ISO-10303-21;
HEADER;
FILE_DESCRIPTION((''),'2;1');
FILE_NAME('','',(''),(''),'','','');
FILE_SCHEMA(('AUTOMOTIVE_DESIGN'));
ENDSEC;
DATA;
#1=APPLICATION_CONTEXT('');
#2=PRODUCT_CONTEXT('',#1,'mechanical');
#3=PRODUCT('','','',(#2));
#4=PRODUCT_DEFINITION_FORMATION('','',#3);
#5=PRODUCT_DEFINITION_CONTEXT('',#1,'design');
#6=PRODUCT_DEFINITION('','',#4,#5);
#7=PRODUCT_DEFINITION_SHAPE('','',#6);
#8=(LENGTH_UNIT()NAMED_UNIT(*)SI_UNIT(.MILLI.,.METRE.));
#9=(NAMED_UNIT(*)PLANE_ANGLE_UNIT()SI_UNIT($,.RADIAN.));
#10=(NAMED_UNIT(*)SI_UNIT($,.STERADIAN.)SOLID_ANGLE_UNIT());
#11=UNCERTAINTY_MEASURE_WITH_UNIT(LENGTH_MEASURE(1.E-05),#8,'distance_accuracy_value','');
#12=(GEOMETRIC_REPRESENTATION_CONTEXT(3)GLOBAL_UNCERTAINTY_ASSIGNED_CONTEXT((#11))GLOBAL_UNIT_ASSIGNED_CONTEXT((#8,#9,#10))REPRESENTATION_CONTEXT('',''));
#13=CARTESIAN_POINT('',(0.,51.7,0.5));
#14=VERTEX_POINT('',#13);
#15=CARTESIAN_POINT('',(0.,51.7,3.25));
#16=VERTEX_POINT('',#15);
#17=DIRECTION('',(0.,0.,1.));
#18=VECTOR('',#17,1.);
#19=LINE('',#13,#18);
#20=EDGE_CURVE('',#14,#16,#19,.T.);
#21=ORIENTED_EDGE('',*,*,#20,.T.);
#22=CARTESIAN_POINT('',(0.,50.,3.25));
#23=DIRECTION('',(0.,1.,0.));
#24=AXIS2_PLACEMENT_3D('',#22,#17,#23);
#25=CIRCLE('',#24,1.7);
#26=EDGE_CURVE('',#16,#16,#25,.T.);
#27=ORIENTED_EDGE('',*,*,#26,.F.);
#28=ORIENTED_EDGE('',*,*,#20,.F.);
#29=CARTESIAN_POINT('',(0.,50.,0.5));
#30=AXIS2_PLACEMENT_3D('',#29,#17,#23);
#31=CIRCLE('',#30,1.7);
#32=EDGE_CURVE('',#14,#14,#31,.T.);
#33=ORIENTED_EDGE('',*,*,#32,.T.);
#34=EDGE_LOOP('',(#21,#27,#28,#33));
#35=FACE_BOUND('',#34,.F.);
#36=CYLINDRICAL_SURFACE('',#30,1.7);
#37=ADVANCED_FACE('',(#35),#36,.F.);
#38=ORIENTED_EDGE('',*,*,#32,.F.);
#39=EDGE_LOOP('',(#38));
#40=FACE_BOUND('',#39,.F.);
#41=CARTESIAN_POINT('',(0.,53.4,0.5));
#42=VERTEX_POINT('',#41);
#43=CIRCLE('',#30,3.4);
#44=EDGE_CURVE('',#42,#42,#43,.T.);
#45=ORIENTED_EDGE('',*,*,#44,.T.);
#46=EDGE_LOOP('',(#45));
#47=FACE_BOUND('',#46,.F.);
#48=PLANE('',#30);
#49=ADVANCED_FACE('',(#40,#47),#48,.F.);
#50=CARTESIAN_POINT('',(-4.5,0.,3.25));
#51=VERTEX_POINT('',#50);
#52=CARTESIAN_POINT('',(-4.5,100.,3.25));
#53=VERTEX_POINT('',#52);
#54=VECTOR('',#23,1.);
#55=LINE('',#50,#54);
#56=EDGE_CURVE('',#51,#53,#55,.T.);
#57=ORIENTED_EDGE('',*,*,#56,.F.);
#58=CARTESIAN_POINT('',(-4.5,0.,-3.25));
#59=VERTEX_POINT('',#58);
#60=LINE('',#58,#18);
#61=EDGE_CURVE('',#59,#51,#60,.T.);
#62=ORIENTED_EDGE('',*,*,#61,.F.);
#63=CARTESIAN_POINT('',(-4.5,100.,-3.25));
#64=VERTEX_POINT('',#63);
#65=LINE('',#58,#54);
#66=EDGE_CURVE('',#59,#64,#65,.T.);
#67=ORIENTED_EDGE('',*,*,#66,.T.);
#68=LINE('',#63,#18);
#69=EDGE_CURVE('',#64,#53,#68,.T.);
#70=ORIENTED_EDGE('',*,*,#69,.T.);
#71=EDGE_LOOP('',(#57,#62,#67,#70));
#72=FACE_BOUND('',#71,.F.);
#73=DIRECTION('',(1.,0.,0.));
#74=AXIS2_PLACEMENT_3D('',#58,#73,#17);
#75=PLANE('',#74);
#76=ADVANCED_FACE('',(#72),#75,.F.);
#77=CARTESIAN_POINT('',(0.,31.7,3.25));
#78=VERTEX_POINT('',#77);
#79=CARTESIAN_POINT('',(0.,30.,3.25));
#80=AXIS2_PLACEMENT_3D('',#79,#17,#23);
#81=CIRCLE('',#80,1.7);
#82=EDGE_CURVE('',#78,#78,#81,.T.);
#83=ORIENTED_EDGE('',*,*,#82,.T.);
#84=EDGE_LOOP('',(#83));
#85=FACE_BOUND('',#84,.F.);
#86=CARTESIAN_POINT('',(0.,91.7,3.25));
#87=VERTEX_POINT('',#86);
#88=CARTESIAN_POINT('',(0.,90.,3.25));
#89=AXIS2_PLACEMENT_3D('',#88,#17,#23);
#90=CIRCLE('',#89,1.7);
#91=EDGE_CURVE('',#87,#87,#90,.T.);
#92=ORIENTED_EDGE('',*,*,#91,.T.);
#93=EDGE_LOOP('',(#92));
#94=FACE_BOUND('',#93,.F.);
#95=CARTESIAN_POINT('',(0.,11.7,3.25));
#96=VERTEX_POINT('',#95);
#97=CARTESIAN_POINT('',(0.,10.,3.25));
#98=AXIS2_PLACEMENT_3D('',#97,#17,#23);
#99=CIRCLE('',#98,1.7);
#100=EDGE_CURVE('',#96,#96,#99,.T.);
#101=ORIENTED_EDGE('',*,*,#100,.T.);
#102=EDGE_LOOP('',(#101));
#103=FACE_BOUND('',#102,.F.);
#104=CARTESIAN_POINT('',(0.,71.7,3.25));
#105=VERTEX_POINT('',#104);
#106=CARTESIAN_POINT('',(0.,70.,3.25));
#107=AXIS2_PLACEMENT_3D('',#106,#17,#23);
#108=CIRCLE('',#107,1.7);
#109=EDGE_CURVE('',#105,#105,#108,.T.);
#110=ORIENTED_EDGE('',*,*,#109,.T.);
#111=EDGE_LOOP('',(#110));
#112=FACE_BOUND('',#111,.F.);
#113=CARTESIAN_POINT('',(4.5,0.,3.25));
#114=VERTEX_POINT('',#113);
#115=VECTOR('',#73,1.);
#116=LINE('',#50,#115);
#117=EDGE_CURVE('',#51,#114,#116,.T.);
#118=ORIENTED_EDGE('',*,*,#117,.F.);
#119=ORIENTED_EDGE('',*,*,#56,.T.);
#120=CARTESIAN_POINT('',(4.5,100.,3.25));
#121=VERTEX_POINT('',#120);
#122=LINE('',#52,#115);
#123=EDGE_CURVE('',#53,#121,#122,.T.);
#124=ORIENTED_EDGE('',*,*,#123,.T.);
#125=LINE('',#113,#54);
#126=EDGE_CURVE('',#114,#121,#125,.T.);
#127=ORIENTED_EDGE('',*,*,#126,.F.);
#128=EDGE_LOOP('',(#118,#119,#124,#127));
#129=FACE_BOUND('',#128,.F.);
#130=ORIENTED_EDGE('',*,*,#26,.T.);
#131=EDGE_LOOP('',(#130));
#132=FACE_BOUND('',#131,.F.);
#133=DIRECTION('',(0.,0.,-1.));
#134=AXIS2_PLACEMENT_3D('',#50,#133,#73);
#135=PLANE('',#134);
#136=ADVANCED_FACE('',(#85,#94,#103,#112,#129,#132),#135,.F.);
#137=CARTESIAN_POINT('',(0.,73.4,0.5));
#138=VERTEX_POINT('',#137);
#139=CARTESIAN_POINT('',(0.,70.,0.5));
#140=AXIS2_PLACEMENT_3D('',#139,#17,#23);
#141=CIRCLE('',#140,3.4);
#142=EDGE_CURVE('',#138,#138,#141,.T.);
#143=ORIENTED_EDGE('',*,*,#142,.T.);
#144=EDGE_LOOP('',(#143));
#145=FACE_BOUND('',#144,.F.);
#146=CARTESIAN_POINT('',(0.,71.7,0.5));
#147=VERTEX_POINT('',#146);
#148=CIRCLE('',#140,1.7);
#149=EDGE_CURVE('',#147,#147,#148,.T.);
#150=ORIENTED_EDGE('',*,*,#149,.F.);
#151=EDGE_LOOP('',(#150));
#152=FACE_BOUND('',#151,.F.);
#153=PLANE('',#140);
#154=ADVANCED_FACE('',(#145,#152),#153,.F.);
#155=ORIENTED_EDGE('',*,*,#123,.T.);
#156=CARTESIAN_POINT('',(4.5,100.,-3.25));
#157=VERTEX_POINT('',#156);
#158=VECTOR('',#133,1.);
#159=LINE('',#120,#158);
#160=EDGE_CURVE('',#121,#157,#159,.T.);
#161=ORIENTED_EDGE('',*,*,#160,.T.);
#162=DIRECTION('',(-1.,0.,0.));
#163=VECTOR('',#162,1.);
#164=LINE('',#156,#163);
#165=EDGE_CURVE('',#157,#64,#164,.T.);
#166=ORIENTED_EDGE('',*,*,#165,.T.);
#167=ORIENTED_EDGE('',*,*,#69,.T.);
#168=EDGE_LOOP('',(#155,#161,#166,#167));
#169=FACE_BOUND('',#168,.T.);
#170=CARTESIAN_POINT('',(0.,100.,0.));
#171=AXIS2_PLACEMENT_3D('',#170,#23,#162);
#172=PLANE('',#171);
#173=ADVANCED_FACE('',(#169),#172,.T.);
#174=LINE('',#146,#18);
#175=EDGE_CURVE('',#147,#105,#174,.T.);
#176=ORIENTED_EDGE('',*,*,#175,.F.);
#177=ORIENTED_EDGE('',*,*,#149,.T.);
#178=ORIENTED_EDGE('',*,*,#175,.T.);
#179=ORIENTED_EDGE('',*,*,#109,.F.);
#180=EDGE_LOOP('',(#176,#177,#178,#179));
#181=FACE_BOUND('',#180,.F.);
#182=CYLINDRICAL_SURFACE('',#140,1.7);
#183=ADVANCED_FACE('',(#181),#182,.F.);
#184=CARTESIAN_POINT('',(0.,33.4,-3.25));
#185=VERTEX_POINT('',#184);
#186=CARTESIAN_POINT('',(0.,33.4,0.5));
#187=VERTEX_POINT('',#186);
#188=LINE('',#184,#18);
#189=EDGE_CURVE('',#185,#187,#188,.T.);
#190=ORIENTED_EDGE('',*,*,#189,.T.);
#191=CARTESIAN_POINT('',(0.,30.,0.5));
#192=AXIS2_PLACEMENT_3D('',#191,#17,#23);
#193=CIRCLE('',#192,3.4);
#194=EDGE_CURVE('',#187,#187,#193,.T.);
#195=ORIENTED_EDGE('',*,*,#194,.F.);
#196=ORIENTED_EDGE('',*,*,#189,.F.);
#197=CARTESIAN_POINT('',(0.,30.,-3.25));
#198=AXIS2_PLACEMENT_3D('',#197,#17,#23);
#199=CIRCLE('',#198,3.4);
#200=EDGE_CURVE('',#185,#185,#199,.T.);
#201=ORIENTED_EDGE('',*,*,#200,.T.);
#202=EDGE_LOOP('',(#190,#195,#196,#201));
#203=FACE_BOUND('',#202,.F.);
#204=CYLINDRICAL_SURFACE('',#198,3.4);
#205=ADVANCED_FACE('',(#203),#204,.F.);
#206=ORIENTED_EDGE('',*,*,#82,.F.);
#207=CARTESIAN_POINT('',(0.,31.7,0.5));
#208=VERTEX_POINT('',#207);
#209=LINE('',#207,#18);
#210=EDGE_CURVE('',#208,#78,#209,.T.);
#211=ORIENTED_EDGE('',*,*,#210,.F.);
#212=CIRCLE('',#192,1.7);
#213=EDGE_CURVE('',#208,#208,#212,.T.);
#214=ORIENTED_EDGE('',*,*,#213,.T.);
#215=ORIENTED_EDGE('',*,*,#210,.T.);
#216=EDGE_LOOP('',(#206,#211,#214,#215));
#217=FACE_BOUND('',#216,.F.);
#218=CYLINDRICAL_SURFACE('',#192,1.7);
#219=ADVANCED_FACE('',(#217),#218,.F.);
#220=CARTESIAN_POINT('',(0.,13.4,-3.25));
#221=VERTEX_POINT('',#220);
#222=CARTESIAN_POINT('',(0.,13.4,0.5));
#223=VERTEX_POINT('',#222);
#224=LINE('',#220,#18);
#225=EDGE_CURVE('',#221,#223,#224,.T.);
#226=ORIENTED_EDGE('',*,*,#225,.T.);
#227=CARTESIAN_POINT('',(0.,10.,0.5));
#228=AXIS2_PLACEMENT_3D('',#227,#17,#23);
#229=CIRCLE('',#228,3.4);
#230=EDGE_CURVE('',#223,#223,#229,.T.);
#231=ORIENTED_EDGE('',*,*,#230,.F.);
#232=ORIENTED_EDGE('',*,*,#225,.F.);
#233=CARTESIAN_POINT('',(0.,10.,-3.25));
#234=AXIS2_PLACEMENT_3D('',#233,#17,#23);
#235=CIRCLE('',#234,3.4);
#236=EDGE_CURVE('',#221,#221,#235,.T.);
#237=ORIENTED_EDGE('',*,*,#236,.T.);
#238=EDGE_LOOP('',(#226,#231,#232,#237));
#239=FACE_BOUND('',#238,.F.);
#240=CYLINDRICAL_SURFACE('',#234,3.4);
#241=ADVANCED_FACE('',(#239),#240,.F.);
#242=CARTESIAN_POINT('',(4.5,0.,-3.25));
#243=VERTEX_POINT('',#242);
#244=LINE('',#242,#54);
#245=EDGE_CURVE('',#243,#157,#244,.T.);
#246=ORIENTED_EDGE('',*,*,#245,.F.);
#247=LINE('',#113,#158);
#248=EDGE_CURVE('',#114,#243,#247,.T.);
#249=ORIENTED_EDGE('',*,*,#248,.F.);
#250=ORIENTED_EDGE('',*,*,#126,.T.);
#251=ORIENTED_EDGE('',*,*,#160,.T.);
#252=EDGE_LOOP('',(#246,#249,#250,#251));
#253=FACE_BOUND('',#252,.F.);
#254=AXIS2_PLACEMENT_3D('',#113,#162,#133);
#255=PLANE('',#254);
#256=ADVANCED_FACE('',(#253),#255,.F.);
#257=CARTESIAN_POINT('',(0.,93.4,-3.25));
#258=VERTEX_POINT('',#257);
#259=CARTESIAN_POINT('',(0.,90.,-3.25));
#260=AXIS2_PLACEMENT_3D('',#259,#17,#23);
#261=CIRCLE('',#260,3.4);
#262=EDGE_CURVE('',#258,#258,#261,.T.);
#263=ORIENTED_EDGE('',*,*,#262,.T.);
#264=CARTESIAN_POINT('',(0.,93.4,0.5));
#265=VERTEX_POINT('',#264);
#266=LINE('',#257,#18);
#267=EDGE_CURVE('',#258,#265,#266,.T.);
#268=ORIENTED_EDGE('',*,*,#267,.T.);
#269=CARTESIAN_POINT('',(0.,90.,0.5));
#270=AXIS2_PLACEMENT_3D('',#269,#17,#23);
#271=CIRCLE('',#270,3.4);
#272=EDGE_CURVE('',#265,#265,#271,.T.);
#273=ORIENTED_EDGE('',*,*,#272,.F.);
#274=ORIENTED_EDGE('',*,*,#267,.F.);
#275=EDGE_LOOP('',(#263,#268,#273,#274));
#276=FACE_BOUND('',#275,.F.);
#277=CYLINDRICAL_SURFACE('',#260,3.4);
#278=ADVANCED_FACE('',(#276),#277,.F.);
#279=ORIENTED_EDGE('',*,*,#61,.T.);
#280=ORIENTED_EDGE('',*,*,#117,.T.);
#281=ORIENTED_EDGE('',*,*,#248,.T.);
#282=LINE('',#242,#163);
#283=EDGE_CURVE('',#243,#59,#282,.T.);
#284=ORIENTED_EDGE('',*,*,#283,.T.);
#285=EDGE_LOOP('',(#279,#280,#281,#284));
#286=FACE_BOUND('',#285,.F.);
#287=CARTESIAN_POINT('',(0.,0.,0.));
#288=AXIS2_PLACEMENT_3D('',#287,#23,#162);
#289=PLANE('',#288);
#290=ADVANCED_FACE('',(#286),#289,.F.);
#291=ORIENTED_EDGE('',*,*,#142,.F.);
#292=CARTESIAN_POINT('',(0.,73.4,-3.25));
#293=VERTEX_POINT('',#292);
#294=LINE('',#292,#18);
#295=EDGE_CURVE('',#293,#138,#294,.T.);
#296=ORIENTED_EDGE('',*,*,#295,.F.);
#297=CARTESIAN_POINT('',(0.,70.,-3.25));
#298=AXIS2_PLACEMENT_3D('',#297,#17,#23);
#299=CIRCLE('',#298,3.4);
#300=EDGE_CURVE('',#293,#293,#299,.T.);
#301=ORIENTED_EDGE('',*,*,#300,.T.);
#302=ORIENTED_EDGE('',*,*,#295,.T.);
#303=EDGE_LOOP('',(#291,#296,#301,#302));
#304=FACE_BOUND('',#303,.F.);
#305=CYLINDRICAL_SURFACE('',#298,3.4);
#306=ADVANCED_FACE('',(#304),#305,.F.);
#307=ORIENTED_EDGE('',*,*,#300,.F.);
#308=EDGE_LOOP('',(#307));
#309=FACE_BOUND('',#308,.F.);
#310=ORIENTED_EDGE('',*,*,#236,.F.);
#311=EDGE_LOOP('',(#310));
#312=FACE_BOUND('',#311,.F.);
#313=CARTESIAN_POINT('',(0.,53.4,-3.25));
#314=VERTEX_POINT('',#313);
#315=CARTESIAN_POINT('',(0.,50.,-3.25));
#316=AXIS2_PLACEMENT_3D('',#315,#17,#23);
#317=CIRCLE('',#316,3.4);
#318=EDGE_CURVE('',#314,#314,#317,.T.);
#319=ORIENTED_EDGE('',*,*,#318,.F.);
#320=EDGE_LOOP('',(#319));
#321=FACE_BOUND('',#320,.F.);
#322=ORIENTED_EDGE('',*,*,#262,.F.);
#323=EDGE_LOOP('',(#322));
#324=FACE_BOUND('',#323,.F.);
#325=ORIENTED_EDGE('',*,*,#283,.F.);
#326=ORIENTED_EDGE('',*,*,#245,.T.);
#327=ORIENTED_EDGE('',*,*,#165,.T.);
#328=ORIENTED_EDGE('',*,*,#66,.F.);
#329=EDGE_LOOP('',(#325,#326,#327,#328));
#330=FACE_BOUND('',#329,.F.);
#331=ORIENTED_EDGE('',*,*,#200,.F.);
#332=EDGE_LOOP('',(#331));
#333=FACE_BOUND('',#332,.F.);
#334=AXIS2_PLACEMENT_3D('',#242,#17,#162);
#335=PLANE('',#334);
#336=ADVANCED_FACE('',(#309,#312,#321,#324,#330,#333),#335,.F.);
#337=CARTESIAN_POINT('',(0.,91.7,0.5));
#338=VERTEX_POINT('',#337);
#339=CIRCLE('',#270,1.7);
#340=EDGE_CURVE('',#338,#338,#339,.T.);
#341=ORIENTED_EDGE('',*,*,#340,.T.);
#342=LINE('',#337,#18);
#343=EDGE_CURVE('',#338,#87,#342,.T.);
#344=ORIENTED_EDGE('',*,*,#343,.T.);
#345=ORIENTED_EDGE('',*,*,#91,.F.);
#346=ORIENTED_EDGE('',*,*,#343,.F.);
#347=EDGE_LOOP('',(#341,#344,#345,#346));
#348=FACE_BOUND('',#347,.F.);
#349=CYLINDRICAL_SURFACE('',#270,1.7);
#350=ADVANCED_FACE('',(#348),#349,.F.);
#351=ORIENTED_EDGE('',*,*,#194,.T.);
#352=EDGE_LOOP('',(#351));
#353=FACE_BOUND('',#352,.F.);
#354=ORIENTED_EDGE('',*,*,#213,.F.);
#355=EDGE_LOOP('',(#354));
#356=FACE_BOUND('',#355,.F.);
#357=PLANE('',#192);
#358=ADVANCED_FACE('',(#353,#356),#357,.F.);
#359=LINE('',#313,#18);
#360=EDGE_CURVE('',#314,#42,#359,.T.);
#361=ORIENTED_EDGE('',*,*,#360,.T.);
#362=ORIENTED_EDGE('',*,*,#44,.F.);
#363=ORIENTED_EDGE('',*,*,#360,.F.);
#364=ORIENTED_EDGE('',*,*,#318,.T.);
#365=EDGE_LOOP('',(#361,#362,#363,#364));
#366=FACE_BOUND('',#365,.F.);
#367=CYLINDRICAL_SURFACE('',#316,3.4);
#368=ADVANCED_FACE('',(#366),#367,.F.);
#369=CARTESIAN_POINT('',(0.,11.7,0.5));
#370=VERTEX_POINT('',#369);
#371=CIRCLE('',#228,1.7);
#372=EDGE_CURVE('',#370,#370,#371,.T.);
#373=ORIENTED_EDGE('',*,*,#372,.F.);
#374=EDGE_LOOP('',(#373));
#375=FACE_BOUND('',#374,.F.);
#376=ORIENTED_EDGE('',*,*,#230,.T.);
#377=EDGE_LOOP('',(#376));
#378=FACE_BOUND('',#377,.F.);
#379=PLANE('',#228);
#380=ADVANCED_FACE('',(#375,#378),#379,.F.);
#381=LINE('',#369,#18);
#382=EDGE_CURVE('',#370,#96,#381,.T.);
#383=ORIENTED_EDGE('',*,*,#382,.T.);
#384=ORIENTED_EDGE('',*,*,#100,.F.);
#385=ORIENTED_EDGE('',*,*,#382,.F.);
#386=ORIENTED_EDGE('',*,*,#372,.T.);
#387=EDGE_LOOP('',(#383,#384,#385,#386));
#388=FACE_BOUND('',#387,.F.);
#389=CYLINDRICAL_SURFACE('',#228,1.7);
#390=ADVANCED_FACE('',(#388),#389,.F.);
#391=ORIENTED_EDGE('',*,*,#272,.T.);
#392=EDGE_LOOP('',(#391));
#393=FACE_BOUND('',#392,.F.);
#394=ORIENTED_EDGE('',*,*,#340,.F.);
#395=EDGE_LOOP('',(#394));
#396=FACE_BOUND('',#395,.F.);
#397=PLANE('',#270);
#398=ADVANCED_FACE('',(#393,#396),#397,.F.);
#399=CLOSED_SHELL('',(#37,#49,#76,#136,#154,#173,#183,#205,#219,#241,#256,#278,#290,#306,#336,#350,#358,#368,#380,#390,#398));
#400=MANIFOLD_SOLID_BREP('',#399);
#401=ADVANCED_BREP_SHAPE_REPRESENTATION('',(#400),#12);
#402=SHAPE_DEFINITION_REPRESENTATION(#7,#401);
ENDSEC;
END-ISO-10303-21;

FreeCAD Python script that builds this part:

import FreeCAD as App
import Part
import Sketcher

V = App.Vector


def add_polygon(sketch, points):
    """Adds a closed chain of lines whose ends are joined by coincident constraints."""
    first, n = sketch.GeometryCount, len(points)
    for a, b in zip(points, points[1:] + points[:1]):
        sketch.addGeometry(Part.LineSegment(App.Vector(*a, 0), App.Vector(*b, 0)), False)
    for i in range(n):
        sketch.addConstraint(Sketcher.Constraint("Coincident", first + i, 2, first + (i + 1) % n, 1))

doc = App.newDocument("Part")
params = doc.addObject("Spreadsheet::Sheet", "Params")
for row, (alias, value) in enumerate([
    ("sketch1_width", "9 mm"),
    ("sketch1_height", "6.5 mm"),
    ("pad1_length", "100 mm"),
    ("sketch2_diameter", "3.4 mm"),
    ("hole_diameter", "3.4 mm"),
    ("hole_depth", "8 mm"),
    ("hole_cbore_diameter", "6.8 mm"),
    ("hole_cbore_depth", "3.75 mm"),
], start=1):
    params.set(f"A{row}", alias)
    params.set(f"B{row}", "=" + value)
    params.setAlias(f"B{row}", alias)

body = doc.addObject("PartDesign::Body", "Body")

# Sketch on XZ plane
sketch1 = body.newObject("Sketcher::SketchObject", "Sketch")
sketch1.AttachmentSupport = (doc.getObject("XZ_Plane"), [""])
sketch1.MapMode = "FlatFace"
add_polygon(sketch1, [(4.5, 3.25), (4.5, -3.25), (-4.5, -3.25), (-4.5, 3.25)])  # lines 0-3
sketch1.addConstraint([
    Sketcher.Constraint("Vertical", 0),
    Sketcher.Constraint("Horizontal", 1),
    Sketcher.Constraint("Vertical", 2),
    Sketcher.Constraint("Horizontal", 3),
    Sketcher.Constraint("Symmetric", 0, 2, 2, 2, -1, 1),
    Sketcher.Constraint("DistanceX", 1, 2, 1, 1, 9.0),
    Sketcher.Constraint("DistanceY", 0, 2, 0, 1, 6.5),
])
sketch1.setExpression("Constraints[9]", "Params.sketch1_width")
sketch1.setExpression("Constraints[10]", "Params.sketch1_height")
pad1 = body.newObject("PartDesign::Pad", "Pad")
pad1.Profile = sketch1
pad1.setExpression("Length", "Params.pad1_length")
pad1.Reversed = True

# Sketch on XY plane
sketch2 = body.newObject("Sketcher::SketchObject", "Sketch001")
sketch2.AttachmentSupport = (doc.getObject("XY_Plane"), [""])
sketch2.MapMode = "FlatFace"
sketch2.AttachmentOffset = App.Placement(V(0, 0, -3.25), App.Rotation())
sketch2.addGeometry([
    Part.Circle(V(0, 90, 0), V(0, 0, 1), 1.7),  # 0
    Part.Circle(V(0, 70, 0), V(0, 0, 1), 1.7),  # 1
    Part.Circle(V(0, 50, 0), V(0, 0, 1), 1.7),  # 2
    Part.Circle(V(0, 30, 0), V(0, 0, 1), 1.7),  # 3
    Part.Circle(V(0, 10, 0), V(0, 0, 1), 1.7),  # 4
], False)
sketch2.addConstraint([
    Sketcher.Constraint("Equal", 0, 1),
    Sketcher.Constraint("Equal", 1, 2),
    Sketcher.Constraint("Equal", 2, 3),
    Sketcher.Constraint("Equal", 3, 4),
    Sketcher.Constraint("PointOnObject", 0, 3, -2),
    Sketcher.Constraint("PointOnObject", 1, 3, -2),
    Sketcher.Constraint("PointOnObject", 2, 3, -2),
    Sketcher.Constraint("PointOnObject", 3, 3, -2),
    Sketcher.Constraint("PointOnObject", 4, 3, -2),
    Sketcher.Constraint("Diameter", 0, 3.4),
    Sketcher.Constraint("DistanceY", -1, 1, 0, 3, 90.0),
    Sketcher.Constraint("DistanceY", -1, 1, 1, 3, 70.0),
    Sketcher.Constraint("DistanceY", -1, 1, 2, 3, 50.0),
    Sketcher.Constraint("DistanceY", -1, 1, 3, 3, 30.0),
    Sketcher.Constraint("DistanceY", -1, 1, 4, 3, 10.0),
])
sketch2.setExpression("Constraints[9]", "Params.sketch2_diameter")
doc.recompute()
hole = body.newObject("PartDesign::Hole", "Hole")
hole.Profile = sketch2
hole.ThreadType = "None"
hole.setExpression("Diameter", "Params.hole_diameter")
hole.DepthType = "Dimension"
hole.setExpression("Depth", "Params.hole_depth")
hole.DrillPoint = "Flat"
hole.HoleCutType = "Counterbore"
hole.setExpression("HoleCutDiameter", "Params.hole_cbore_diameter")
hole.setExpression("HoleCutDepth", "Params.hole_cbore_depth")
hole.Reversed = True

doc.recompute()
